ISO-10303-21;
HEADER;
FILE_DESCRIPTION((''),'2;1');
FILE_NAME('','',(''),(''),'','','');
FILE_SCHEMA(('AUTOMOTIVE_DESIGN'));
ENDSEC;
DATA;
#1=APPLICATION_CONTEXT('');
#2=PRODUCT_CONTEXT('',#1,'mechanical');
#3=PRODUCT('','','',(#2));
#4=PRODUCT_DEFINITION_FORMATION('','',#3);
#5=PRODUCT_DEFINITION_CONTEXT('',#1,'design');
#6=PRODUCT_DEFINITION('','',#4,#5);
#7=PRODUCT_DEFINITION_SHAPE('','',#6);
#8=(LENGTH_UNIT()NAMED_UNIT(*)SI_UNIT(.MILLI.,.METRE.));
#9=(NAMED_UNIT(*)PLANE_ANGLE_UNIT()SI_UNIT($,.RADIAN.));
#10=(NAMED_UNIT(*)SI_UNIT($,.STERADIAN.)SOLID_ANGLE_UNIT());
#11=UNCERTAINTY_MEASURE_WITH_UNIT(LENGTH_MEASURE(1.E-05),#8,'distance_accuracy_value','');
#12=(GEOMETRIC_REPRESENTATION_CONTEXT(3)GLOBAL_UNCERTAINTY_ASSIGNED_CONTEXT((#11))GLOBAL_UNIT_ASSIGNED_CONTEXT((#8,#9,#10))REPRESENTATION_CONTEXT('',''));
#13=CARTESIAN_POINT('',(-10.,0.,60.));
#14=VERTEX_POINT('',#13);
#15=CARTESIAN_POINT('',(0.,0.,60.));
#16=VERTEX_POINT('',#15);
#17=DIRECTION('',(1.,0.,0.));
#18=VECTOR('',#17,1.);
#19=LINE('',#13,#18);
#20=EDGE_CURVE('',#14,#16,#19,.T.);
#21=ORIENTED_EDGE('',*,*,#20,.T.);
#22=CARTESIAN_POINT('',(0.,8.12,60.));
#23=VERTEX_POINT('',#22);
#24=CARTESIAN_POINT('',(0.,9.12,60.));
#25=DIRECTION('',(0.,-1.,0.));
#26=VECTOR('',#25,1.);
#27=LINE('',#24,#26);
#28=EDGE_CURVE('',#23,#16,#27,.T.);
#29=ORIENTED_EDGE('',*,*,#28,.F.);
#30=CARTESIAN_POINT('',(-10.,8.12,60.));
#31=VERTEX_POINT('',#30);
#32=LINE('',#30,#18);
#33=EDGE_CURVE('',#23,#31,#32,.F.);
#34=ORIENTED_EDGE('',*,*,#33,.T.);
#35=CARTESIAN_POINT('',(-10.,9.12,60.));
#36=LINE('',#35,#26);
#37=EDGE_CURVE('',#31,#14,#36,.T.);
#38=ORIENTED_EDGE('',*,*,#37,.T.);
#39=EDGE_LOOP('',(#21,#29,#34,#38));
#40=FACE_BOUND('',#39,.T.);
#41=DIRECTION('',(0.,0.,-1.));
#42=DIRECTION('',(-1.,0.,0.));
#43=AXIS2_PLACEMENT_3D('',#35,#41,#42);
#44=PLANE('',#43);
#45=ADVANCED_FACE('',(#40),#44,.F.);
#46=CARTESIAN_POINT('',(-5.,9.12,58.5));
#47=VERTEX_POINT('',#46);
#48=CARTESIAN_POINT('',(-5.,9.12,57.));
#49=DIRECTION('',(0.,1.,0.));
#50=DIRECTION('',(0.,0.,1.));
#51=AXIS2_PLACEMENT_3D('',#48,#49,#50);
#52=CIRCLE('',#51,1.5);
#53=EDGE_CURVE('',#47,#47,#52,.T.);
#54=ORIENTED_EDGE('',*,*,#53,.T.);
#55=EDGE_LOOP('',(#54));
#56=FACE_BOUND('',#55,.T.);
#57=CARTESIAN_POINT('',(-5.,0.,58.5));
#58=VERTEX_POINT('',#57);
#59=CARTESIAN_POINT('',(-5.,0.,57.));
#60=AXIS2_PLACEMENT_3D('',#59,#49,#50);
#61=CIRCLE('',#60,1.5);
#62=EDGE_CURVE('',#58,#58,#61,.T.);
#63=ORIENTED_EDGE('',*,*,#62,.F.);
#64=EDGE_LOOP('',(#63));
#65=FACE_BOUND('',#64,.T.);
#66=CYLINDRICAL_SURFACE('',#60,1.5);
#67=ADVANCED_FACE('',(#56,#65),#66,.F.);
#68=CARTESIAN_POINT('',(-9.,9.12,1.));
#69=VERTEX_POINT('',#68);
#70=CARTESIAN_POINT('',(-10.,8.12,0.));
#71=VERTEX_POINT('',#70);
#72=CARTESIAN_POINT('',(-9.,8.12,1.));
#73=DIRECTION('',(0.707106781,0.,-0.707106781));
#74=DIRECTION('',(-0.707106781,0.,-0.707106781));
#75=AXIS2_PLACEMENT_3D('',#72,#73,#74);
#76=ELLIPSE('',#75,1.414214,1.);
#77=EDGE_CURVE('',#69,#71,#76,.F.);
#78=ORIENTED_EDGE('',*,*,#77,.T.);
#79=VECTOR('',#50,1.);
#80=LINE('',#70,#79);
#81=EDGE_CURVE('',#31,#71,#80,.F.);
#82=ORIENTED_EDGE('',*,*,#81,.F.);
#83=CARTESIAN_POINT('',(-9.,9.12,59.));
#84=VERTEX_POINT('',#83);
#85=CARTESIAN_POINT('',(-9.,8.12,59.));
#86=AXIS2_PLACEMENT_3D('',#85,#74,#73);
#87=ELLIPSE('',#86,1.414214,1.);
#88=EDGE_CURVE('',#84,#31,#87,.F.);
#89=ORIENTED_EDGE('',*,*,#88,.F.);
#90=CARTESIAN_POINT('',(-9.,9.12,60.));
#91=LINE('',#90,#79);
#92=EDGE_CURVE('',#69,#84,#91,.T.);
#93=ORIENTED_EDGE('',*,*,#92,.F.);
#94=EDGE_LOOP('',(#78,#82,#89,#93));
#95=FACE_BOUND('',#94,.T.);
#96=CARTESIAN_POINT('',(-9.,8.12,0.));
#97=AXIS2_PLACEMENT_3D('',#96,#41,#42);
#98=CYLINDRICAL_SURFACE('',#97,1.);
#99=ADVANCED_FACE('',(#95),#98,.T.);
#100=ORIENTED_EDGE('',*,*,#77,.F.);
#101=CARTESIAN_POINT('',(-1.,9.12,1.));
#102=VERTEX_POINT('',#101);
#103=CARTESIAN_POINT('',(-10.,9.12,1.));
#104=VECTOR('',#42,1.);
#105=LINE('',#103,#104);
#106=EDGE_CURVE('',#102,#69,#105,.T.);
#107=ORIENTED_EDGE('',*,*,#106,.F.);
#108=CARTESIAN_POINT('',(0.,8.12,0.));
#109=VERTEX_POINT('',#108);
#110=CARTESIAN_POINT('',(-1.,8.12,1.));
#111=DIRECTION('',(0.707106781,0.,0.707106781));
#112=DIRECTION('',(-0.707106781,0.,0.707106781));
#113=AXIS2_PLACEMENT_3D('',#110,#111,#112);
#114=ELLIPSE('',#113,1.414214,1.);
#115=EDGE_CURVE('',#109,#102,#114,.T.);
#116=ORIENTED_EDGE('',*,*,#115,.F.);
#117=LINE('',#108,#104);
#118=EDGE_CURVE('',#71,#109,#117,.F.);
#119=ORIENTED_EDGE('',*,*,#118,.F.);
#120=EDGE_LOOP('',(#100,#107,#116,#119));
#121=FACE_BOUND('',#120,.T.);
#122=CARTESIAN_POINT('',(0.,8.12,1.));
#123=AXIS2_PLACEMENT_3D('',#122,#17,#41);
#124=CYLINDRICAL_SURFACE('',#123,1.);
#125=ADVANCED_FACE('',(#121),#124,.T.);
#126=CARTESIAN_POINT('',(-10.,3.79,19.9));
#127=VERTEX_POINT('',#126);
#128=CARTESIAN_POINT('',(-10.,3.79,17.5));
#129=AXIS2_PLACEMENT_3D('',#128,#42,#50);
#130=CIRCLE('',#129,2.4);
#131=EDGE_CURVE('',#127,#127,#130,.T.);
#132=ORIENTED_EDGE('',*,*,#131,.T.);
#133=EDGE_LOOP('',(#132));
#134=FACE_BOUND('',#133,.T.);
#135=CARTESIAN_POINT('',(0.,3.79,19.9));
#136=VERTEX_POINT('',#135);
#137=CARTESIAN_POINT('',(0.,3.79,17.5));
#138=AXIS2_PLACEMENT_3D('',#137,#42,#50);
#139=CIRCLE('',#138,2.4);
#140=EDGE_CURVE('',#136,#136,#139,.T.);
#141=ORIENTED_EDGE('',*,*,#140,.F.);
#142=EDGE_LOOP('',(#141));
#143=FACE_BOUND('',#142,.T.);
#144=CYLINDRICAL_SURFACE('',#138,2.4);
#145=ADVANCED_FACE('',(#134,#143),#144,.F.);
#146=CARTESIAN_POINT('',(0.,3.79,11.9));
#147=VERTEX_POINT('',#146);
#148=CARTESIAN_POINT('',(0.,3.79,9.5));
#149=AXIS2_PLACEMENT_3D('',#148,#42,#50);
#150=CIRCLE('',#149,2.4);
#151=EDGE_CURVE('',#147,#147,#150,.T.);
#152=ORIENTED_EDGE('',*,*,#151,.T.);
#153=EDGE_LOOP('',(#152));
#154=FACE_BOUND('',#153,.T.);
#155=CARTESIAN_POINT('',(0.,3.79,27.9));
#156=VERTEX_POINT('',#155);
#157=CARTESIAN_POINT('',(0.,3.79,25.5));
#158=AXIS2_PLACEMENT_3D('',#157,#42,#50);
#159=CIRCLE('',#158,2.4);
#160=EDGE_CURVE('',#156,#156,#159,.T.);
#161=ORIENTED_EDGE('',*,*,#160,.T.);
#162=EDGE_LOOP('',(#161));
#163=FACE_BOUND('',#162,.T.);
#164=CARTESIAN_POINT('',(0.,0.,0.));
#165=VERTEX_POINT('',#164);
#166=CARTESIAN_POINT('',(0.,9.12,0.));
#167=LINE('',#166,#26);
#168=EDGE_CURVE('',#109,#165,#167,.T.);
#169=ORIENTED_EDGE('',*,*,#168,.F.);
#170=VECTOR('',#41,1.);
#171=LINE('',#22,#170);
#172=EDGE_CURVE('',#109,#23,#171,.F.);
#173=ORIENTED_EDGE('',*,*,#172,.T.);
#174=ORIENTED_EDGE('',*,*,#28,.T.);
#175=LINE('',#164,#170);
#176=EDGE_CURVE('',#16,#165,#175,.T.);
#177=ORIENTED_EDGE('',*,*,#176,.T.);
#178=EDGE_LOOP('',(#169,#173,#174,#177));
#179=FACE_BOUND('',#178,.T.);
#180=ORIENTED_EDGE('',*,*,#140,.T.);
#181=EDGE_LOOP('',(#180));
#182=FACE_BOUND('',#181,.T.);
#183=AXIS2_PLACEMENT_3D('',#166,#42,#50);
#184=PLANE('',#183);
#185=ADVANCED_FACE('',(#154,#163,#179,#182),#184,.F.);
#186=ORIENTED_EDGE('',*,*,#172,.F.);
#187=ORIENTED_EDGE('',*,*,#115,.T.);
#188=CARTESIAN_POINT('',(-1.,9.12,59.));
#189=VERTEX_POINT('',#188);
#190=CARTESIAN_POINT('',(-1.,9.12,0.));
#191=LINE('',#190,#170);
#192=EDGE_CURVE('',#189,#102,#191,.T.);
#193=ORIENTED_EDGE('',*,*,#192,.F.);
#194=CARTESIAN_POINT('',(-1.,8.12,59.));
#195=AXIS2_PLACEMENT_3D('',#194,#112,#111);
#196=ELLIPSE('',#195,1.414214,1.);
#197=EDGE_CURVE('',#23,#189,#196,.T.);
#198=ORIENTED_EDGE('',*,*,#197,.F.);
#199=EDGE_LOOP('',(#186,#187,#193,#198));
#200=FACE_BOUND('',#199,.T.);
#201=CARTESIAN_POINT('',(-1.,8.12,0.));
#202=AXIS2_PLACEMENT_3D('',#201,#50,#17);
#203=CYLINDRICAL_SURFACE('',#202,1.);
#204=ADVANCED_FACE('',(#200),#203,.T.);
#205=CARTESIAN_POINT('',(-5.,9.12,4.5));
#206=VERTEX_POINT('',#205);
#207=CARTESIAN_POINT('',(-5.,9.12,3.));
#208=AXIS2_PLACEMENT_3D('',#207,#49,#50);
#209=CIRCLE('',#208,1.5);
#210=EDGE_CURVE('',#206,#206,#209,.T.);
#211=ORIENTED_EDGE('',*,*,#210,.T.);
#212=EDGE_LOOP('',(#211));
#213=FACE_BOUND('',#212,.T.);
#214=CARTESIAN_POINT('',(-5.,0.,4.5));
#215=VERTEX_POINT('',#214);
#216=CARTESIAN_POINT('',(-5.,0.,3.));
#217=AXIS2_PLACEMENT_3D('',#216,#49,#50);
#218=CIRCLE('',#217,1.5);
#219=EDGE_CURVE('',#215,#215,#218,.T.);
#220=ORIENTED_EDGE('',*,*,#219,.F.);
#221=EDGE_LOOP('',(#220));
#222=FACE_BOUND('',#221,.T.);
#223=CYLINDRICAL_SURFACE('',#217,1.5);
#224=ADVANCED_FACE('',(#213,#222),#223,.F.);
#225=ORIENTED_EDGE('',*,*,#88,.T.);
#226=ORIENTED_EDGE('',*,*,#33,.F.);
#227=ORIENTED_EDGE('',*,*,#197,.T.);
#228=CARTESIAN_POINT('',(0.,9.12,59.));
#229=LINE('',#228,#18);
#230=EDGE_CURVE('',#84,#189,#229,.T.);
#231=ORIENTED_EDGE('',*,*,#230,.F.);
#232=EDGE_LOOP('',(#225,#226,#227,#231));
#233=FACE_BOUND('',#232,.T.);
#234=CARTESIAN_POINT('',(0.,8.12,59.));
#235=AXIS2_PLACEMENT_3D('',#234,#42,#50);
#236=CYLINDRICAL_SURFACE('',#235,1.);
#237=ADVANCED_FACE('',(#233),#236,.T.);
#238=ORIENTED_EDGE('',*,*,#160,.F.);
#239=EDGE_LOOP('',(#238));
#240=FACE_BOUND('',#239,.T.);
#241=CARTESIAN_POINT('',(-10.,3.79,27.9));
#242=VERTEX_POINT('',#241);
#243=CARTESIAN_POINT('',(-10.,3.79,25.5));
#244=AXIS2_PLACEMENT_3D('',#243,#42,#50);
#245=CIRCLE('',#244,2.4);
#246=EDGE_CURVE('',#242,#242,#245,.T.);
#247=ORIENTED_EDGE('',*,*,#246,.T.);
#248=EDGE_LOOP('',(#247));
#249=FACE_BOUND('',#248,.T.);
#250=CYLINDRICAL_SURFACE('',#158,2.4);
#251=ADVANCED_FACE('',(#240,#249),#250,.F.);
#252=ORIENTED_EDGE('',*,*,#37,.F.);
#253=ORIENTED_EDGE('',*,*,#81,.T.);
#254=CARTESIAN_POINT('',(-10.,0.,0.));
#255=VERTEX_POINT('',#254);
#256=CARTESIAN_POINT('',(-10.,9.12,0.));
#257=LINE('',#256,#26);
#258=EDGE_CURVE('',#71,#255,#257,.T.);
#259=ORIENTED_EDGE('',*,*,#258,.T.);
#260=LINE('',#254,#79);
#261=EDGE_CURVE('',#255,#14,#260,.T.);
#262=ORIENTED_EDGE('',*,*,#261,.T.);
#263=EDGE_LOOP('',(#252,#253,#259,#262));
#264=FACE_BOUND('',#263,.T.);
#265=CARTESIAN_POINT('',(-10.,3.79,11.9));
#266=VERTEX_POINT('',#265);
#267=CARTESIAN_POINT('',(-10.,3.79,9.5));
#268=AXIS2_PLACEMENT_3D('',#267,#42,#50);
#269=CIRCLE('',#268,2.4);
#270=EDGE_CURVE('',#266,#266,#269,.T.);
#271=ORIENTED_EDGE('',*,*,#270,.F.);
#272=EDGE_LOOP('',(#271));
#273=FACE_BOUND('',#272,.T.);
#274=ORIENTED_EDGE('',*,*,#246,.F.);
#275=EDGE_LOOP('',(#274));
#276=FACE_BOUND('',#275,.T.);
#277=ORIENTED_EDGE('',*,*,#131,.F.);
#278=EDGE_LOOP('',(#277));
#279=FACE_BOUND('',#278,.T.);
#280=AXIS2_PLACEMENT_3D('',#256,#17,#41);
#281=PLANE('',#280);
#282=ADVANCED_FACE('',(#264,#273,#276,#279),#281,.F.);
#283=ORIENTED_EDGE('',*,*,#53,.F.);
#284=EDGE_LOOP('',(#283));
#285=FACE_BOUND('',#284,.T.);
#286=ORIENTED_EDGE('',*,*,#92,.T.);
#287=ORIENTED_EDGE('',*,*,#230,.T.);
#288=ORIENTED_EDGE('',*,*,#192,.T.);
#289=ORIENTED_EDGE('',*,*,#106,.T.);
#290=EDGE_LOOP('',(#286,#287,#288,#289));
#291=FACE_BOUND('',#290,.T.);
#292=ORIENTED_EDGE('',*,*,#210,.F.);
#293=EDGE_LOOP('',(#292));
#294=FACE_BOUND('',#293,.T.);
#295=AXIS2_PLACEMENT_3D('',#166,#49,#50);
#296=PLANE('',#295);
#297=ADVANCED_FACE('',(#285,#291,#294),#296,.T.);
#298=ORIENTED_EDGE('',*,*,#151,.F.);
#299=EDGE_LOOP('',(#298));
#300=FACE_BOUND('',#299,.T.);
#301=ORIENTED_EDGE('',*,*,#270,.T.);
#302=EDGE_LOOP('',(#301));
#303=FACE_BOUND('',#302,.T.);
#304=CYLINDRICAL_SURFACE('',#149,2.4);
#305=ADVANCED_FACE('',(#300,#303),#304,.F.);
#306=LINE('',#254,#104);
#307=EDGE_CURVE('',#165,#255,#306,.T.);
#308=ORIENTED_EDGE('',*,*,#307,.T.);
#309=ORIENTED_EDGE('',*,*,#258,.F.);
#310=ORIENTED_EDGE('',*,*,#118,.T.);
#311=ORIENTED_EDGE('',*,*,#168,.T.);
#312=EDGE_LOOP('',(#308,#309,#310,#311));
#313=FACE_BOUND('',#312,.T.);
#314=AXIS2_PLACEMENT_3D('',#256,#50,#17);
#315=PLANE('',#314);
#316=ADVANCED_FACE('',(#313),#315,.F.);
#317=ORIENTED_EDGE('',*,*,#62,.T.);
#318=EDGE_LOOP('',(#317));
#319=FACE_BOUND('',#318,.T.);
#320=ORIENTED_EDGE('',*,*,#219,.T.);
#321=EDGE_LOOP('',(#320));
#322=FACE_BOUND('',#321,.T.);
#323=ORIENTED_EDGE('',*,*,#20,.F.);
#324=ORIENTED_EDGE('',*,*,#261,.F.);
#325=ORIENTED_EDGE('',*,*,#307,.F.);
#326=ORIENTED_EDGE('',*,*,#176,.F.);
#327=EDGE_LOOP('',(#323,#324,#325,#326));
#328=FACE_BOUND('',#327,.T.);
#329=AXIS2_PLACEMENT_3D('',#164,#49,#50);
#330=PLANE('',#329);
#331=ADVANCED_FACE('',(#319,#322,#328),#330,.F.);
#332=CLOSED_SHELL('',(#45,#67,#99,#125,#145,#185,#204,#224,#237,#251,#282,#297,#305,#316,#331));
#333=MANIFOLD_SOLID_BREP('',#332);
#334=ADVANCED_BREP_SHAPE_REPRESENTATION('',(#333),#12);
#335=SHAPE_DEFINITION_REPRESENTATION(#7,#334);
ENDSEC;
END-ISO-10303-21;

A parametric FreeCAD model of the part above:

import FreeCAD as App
import Part
import Sketcher
from FreeCAD import Vector


def edges_at(feature, points):
    """Names of the edges that pass closest to the given points."""
    edges = feature.Shape.Edges
    near = lambda p: min(range(len(edges)), key=lambda i: edges[i].distToShape(Part.Vertex(*p))[0])
    return sorted({f"Edge{near(p) + 1}" for p in points})

doc = App.newDocument("Part")
body = doc.addObject("PartDesign::Body", "Body")

# Sketch on XZ plane
sketch1 = doc.addObject("Sketcher::SketchObject", "Sketch")
body.addObject(sketch1)
sketch1.AttachmentSupport = (doc.XZ_Plane, [""])
sketch1.MapMode = "FlatFace"
sketch1.addGeometry([
    Part.LineSegment(Vector(-10, 0, 0), Vector(-10, 60, 0)),
    Part.LineSegment(Vector(-10, 60, 0), Vector(0, 60, 0)),
    Part.LineSegment(Vector(0, 60, 0), Vector(0, 0, 0)),
    Part.LineSegment(Vector(0, 0, 0), Vector(-10, 0, 0)),
], False)
sketch1.addConstraint([
    Sketcher.Constraint("Coincident", 0, 2, 1, 1),
    Sketcher.Constraint("Coincident", 1, 2, 2, 1),
    Sketcher.Constraint("Coincident", 2, 2, 3, 1),
    Sketcher.Constraint("Coincident", 3, 2, 0, 1),
    Sketcher.Constraint("Vertical", 0),
    Sketcher.Constraint("Horizontal", 1),
    Sketcher.Constraint("Vertical", 2),
    Sketcher.Constraint("Horizontal", 3),
    Sketcher.Constraint("Coincident", 2, 2, -1, 1),
    Sketcher.Constraint("DistanceX", 1, 1, 1, 2, 10.0),
    Sketcher.Constraint("DistanceY", 0, 1, 0, 2, 60.0),
])
pad1 = doc.addObject("PartDesign::Pad", "Pad")
body.addObject(pad1)
pad1.Profile = sketch1
pad1.Length = 9.12
pad1.Reversed = True

# Sketch on YZ plane
sketch2 = doc.addObject("Sketcher::SketchObject", "Sketch001")
body.addObject(sketch2)
sketch2.AttachmentSupport = (doc.YZ_Plane, [""])
sketch2.MapMode = "FlatFace"
sketch2.AttachmentOffset = App.Placement(Vector(0, 0, -10), App.Rotation())
sketch2.addGeometry([
    Part.Circle(Vector(3.79, 17.5, 0), Vector(0, 0, 1), 2.4),
    Part.Circle(Vector(3.79, 9.5, 0), Vector(0, 0, 1), 2.4),
    Part.Circle(Vector(3.79, 25.5, 0), Vector(0, 0, 1), 2.4),
], False)
sketch2.addConstraint([
    Sketcher.Constraint("Equal", 0, 1),
    Sketcher.Constraint("Equal", 1, 2),
    Sketcher.Constraint("Vertical", 0, 3, 1, 3),
    Sketcher.Constraint("Vertical", 1, 3, 2, 3),
    Sketcher.Constraint("Diameter", 0, 4.8),
    Sketcher.Constraint("DistanceY", 1, 3, 0, 3, 8.0),
    Sketcher.Constraint("DistanceY", 0, 3, 2, 3, 8.0),
    Sketcher.Constraint("DistanceY", -1, 1, 0, 3, 17.5),
    Sketcher.Constraint("DistanceX", -1, 1, 0, 3, 3.79),
])
pocket1 = doc.addObject("PartDesign::Pocket", "Pocket")
body.addObject(pocket1)
pocket1.Profile = sketch2
pocket1.Type = "ThroughAll"
pocket1.Reversed = True

# Sketch on XZ plane
sketch3 = doc.addObject("Sketcher::SketchObject", "Sketch002")
body.addObject(sketch3)
sketch3.AttachmentSupport = (doc.XZ_Plane, [""])
sketch3.MapMode = "FlatFace"
sketch3.AttachmentOffset = App.Placement(Vector(0, 0, -9.12), App.Rotation())
sketch3.addGeometry([
    Part.Circle(Vector(-5, 3, 0), Vector(0, 0, 1), 1.5),
    Part.Circle(Vector(-5, 57, 0), Vector(0, 0, 1), 1.5),
], False)
sketch3.addConstraint([
    Sketcher.Constraint("Equal", 0, 1),
    Sketcher.Constraint("Vertical", 0, 3, 1, 3),
    Sketcher.Constraint("Diameter", 0, 3.0),
    Sketcher.Constraint("DistanceX", 0, 3, -1, 1, 5.0),
    Sketcher.Constraint("DistanceY", -1, 1, 0, 3, 3.0),
    Sketcher.Constraint("DistanceY", -1, 1, 1, 3, 57.0),
])
pocket2 = doc.addObject("PartDesign::Pocket", "Pocket001")
body.addObject(pocket2)
pocket2.Profile = sketch3
pocket2.Type = "ThroughAll"
pocket2.Reversed = True
doc.recompute()

fillet = doc.addObject("PartDesign::Fillet", "Fillet")
body.addObject(fillet)
fillet.Base = (pocket2, edges_at(pocket2, [
    (0, 9.12, 30),
    (-5, 9.12, 0),
    (-10, 9.12, 30),
    (-5, 9.12, 60),
]))
fillet.Radius = 1

doc.recompute()
